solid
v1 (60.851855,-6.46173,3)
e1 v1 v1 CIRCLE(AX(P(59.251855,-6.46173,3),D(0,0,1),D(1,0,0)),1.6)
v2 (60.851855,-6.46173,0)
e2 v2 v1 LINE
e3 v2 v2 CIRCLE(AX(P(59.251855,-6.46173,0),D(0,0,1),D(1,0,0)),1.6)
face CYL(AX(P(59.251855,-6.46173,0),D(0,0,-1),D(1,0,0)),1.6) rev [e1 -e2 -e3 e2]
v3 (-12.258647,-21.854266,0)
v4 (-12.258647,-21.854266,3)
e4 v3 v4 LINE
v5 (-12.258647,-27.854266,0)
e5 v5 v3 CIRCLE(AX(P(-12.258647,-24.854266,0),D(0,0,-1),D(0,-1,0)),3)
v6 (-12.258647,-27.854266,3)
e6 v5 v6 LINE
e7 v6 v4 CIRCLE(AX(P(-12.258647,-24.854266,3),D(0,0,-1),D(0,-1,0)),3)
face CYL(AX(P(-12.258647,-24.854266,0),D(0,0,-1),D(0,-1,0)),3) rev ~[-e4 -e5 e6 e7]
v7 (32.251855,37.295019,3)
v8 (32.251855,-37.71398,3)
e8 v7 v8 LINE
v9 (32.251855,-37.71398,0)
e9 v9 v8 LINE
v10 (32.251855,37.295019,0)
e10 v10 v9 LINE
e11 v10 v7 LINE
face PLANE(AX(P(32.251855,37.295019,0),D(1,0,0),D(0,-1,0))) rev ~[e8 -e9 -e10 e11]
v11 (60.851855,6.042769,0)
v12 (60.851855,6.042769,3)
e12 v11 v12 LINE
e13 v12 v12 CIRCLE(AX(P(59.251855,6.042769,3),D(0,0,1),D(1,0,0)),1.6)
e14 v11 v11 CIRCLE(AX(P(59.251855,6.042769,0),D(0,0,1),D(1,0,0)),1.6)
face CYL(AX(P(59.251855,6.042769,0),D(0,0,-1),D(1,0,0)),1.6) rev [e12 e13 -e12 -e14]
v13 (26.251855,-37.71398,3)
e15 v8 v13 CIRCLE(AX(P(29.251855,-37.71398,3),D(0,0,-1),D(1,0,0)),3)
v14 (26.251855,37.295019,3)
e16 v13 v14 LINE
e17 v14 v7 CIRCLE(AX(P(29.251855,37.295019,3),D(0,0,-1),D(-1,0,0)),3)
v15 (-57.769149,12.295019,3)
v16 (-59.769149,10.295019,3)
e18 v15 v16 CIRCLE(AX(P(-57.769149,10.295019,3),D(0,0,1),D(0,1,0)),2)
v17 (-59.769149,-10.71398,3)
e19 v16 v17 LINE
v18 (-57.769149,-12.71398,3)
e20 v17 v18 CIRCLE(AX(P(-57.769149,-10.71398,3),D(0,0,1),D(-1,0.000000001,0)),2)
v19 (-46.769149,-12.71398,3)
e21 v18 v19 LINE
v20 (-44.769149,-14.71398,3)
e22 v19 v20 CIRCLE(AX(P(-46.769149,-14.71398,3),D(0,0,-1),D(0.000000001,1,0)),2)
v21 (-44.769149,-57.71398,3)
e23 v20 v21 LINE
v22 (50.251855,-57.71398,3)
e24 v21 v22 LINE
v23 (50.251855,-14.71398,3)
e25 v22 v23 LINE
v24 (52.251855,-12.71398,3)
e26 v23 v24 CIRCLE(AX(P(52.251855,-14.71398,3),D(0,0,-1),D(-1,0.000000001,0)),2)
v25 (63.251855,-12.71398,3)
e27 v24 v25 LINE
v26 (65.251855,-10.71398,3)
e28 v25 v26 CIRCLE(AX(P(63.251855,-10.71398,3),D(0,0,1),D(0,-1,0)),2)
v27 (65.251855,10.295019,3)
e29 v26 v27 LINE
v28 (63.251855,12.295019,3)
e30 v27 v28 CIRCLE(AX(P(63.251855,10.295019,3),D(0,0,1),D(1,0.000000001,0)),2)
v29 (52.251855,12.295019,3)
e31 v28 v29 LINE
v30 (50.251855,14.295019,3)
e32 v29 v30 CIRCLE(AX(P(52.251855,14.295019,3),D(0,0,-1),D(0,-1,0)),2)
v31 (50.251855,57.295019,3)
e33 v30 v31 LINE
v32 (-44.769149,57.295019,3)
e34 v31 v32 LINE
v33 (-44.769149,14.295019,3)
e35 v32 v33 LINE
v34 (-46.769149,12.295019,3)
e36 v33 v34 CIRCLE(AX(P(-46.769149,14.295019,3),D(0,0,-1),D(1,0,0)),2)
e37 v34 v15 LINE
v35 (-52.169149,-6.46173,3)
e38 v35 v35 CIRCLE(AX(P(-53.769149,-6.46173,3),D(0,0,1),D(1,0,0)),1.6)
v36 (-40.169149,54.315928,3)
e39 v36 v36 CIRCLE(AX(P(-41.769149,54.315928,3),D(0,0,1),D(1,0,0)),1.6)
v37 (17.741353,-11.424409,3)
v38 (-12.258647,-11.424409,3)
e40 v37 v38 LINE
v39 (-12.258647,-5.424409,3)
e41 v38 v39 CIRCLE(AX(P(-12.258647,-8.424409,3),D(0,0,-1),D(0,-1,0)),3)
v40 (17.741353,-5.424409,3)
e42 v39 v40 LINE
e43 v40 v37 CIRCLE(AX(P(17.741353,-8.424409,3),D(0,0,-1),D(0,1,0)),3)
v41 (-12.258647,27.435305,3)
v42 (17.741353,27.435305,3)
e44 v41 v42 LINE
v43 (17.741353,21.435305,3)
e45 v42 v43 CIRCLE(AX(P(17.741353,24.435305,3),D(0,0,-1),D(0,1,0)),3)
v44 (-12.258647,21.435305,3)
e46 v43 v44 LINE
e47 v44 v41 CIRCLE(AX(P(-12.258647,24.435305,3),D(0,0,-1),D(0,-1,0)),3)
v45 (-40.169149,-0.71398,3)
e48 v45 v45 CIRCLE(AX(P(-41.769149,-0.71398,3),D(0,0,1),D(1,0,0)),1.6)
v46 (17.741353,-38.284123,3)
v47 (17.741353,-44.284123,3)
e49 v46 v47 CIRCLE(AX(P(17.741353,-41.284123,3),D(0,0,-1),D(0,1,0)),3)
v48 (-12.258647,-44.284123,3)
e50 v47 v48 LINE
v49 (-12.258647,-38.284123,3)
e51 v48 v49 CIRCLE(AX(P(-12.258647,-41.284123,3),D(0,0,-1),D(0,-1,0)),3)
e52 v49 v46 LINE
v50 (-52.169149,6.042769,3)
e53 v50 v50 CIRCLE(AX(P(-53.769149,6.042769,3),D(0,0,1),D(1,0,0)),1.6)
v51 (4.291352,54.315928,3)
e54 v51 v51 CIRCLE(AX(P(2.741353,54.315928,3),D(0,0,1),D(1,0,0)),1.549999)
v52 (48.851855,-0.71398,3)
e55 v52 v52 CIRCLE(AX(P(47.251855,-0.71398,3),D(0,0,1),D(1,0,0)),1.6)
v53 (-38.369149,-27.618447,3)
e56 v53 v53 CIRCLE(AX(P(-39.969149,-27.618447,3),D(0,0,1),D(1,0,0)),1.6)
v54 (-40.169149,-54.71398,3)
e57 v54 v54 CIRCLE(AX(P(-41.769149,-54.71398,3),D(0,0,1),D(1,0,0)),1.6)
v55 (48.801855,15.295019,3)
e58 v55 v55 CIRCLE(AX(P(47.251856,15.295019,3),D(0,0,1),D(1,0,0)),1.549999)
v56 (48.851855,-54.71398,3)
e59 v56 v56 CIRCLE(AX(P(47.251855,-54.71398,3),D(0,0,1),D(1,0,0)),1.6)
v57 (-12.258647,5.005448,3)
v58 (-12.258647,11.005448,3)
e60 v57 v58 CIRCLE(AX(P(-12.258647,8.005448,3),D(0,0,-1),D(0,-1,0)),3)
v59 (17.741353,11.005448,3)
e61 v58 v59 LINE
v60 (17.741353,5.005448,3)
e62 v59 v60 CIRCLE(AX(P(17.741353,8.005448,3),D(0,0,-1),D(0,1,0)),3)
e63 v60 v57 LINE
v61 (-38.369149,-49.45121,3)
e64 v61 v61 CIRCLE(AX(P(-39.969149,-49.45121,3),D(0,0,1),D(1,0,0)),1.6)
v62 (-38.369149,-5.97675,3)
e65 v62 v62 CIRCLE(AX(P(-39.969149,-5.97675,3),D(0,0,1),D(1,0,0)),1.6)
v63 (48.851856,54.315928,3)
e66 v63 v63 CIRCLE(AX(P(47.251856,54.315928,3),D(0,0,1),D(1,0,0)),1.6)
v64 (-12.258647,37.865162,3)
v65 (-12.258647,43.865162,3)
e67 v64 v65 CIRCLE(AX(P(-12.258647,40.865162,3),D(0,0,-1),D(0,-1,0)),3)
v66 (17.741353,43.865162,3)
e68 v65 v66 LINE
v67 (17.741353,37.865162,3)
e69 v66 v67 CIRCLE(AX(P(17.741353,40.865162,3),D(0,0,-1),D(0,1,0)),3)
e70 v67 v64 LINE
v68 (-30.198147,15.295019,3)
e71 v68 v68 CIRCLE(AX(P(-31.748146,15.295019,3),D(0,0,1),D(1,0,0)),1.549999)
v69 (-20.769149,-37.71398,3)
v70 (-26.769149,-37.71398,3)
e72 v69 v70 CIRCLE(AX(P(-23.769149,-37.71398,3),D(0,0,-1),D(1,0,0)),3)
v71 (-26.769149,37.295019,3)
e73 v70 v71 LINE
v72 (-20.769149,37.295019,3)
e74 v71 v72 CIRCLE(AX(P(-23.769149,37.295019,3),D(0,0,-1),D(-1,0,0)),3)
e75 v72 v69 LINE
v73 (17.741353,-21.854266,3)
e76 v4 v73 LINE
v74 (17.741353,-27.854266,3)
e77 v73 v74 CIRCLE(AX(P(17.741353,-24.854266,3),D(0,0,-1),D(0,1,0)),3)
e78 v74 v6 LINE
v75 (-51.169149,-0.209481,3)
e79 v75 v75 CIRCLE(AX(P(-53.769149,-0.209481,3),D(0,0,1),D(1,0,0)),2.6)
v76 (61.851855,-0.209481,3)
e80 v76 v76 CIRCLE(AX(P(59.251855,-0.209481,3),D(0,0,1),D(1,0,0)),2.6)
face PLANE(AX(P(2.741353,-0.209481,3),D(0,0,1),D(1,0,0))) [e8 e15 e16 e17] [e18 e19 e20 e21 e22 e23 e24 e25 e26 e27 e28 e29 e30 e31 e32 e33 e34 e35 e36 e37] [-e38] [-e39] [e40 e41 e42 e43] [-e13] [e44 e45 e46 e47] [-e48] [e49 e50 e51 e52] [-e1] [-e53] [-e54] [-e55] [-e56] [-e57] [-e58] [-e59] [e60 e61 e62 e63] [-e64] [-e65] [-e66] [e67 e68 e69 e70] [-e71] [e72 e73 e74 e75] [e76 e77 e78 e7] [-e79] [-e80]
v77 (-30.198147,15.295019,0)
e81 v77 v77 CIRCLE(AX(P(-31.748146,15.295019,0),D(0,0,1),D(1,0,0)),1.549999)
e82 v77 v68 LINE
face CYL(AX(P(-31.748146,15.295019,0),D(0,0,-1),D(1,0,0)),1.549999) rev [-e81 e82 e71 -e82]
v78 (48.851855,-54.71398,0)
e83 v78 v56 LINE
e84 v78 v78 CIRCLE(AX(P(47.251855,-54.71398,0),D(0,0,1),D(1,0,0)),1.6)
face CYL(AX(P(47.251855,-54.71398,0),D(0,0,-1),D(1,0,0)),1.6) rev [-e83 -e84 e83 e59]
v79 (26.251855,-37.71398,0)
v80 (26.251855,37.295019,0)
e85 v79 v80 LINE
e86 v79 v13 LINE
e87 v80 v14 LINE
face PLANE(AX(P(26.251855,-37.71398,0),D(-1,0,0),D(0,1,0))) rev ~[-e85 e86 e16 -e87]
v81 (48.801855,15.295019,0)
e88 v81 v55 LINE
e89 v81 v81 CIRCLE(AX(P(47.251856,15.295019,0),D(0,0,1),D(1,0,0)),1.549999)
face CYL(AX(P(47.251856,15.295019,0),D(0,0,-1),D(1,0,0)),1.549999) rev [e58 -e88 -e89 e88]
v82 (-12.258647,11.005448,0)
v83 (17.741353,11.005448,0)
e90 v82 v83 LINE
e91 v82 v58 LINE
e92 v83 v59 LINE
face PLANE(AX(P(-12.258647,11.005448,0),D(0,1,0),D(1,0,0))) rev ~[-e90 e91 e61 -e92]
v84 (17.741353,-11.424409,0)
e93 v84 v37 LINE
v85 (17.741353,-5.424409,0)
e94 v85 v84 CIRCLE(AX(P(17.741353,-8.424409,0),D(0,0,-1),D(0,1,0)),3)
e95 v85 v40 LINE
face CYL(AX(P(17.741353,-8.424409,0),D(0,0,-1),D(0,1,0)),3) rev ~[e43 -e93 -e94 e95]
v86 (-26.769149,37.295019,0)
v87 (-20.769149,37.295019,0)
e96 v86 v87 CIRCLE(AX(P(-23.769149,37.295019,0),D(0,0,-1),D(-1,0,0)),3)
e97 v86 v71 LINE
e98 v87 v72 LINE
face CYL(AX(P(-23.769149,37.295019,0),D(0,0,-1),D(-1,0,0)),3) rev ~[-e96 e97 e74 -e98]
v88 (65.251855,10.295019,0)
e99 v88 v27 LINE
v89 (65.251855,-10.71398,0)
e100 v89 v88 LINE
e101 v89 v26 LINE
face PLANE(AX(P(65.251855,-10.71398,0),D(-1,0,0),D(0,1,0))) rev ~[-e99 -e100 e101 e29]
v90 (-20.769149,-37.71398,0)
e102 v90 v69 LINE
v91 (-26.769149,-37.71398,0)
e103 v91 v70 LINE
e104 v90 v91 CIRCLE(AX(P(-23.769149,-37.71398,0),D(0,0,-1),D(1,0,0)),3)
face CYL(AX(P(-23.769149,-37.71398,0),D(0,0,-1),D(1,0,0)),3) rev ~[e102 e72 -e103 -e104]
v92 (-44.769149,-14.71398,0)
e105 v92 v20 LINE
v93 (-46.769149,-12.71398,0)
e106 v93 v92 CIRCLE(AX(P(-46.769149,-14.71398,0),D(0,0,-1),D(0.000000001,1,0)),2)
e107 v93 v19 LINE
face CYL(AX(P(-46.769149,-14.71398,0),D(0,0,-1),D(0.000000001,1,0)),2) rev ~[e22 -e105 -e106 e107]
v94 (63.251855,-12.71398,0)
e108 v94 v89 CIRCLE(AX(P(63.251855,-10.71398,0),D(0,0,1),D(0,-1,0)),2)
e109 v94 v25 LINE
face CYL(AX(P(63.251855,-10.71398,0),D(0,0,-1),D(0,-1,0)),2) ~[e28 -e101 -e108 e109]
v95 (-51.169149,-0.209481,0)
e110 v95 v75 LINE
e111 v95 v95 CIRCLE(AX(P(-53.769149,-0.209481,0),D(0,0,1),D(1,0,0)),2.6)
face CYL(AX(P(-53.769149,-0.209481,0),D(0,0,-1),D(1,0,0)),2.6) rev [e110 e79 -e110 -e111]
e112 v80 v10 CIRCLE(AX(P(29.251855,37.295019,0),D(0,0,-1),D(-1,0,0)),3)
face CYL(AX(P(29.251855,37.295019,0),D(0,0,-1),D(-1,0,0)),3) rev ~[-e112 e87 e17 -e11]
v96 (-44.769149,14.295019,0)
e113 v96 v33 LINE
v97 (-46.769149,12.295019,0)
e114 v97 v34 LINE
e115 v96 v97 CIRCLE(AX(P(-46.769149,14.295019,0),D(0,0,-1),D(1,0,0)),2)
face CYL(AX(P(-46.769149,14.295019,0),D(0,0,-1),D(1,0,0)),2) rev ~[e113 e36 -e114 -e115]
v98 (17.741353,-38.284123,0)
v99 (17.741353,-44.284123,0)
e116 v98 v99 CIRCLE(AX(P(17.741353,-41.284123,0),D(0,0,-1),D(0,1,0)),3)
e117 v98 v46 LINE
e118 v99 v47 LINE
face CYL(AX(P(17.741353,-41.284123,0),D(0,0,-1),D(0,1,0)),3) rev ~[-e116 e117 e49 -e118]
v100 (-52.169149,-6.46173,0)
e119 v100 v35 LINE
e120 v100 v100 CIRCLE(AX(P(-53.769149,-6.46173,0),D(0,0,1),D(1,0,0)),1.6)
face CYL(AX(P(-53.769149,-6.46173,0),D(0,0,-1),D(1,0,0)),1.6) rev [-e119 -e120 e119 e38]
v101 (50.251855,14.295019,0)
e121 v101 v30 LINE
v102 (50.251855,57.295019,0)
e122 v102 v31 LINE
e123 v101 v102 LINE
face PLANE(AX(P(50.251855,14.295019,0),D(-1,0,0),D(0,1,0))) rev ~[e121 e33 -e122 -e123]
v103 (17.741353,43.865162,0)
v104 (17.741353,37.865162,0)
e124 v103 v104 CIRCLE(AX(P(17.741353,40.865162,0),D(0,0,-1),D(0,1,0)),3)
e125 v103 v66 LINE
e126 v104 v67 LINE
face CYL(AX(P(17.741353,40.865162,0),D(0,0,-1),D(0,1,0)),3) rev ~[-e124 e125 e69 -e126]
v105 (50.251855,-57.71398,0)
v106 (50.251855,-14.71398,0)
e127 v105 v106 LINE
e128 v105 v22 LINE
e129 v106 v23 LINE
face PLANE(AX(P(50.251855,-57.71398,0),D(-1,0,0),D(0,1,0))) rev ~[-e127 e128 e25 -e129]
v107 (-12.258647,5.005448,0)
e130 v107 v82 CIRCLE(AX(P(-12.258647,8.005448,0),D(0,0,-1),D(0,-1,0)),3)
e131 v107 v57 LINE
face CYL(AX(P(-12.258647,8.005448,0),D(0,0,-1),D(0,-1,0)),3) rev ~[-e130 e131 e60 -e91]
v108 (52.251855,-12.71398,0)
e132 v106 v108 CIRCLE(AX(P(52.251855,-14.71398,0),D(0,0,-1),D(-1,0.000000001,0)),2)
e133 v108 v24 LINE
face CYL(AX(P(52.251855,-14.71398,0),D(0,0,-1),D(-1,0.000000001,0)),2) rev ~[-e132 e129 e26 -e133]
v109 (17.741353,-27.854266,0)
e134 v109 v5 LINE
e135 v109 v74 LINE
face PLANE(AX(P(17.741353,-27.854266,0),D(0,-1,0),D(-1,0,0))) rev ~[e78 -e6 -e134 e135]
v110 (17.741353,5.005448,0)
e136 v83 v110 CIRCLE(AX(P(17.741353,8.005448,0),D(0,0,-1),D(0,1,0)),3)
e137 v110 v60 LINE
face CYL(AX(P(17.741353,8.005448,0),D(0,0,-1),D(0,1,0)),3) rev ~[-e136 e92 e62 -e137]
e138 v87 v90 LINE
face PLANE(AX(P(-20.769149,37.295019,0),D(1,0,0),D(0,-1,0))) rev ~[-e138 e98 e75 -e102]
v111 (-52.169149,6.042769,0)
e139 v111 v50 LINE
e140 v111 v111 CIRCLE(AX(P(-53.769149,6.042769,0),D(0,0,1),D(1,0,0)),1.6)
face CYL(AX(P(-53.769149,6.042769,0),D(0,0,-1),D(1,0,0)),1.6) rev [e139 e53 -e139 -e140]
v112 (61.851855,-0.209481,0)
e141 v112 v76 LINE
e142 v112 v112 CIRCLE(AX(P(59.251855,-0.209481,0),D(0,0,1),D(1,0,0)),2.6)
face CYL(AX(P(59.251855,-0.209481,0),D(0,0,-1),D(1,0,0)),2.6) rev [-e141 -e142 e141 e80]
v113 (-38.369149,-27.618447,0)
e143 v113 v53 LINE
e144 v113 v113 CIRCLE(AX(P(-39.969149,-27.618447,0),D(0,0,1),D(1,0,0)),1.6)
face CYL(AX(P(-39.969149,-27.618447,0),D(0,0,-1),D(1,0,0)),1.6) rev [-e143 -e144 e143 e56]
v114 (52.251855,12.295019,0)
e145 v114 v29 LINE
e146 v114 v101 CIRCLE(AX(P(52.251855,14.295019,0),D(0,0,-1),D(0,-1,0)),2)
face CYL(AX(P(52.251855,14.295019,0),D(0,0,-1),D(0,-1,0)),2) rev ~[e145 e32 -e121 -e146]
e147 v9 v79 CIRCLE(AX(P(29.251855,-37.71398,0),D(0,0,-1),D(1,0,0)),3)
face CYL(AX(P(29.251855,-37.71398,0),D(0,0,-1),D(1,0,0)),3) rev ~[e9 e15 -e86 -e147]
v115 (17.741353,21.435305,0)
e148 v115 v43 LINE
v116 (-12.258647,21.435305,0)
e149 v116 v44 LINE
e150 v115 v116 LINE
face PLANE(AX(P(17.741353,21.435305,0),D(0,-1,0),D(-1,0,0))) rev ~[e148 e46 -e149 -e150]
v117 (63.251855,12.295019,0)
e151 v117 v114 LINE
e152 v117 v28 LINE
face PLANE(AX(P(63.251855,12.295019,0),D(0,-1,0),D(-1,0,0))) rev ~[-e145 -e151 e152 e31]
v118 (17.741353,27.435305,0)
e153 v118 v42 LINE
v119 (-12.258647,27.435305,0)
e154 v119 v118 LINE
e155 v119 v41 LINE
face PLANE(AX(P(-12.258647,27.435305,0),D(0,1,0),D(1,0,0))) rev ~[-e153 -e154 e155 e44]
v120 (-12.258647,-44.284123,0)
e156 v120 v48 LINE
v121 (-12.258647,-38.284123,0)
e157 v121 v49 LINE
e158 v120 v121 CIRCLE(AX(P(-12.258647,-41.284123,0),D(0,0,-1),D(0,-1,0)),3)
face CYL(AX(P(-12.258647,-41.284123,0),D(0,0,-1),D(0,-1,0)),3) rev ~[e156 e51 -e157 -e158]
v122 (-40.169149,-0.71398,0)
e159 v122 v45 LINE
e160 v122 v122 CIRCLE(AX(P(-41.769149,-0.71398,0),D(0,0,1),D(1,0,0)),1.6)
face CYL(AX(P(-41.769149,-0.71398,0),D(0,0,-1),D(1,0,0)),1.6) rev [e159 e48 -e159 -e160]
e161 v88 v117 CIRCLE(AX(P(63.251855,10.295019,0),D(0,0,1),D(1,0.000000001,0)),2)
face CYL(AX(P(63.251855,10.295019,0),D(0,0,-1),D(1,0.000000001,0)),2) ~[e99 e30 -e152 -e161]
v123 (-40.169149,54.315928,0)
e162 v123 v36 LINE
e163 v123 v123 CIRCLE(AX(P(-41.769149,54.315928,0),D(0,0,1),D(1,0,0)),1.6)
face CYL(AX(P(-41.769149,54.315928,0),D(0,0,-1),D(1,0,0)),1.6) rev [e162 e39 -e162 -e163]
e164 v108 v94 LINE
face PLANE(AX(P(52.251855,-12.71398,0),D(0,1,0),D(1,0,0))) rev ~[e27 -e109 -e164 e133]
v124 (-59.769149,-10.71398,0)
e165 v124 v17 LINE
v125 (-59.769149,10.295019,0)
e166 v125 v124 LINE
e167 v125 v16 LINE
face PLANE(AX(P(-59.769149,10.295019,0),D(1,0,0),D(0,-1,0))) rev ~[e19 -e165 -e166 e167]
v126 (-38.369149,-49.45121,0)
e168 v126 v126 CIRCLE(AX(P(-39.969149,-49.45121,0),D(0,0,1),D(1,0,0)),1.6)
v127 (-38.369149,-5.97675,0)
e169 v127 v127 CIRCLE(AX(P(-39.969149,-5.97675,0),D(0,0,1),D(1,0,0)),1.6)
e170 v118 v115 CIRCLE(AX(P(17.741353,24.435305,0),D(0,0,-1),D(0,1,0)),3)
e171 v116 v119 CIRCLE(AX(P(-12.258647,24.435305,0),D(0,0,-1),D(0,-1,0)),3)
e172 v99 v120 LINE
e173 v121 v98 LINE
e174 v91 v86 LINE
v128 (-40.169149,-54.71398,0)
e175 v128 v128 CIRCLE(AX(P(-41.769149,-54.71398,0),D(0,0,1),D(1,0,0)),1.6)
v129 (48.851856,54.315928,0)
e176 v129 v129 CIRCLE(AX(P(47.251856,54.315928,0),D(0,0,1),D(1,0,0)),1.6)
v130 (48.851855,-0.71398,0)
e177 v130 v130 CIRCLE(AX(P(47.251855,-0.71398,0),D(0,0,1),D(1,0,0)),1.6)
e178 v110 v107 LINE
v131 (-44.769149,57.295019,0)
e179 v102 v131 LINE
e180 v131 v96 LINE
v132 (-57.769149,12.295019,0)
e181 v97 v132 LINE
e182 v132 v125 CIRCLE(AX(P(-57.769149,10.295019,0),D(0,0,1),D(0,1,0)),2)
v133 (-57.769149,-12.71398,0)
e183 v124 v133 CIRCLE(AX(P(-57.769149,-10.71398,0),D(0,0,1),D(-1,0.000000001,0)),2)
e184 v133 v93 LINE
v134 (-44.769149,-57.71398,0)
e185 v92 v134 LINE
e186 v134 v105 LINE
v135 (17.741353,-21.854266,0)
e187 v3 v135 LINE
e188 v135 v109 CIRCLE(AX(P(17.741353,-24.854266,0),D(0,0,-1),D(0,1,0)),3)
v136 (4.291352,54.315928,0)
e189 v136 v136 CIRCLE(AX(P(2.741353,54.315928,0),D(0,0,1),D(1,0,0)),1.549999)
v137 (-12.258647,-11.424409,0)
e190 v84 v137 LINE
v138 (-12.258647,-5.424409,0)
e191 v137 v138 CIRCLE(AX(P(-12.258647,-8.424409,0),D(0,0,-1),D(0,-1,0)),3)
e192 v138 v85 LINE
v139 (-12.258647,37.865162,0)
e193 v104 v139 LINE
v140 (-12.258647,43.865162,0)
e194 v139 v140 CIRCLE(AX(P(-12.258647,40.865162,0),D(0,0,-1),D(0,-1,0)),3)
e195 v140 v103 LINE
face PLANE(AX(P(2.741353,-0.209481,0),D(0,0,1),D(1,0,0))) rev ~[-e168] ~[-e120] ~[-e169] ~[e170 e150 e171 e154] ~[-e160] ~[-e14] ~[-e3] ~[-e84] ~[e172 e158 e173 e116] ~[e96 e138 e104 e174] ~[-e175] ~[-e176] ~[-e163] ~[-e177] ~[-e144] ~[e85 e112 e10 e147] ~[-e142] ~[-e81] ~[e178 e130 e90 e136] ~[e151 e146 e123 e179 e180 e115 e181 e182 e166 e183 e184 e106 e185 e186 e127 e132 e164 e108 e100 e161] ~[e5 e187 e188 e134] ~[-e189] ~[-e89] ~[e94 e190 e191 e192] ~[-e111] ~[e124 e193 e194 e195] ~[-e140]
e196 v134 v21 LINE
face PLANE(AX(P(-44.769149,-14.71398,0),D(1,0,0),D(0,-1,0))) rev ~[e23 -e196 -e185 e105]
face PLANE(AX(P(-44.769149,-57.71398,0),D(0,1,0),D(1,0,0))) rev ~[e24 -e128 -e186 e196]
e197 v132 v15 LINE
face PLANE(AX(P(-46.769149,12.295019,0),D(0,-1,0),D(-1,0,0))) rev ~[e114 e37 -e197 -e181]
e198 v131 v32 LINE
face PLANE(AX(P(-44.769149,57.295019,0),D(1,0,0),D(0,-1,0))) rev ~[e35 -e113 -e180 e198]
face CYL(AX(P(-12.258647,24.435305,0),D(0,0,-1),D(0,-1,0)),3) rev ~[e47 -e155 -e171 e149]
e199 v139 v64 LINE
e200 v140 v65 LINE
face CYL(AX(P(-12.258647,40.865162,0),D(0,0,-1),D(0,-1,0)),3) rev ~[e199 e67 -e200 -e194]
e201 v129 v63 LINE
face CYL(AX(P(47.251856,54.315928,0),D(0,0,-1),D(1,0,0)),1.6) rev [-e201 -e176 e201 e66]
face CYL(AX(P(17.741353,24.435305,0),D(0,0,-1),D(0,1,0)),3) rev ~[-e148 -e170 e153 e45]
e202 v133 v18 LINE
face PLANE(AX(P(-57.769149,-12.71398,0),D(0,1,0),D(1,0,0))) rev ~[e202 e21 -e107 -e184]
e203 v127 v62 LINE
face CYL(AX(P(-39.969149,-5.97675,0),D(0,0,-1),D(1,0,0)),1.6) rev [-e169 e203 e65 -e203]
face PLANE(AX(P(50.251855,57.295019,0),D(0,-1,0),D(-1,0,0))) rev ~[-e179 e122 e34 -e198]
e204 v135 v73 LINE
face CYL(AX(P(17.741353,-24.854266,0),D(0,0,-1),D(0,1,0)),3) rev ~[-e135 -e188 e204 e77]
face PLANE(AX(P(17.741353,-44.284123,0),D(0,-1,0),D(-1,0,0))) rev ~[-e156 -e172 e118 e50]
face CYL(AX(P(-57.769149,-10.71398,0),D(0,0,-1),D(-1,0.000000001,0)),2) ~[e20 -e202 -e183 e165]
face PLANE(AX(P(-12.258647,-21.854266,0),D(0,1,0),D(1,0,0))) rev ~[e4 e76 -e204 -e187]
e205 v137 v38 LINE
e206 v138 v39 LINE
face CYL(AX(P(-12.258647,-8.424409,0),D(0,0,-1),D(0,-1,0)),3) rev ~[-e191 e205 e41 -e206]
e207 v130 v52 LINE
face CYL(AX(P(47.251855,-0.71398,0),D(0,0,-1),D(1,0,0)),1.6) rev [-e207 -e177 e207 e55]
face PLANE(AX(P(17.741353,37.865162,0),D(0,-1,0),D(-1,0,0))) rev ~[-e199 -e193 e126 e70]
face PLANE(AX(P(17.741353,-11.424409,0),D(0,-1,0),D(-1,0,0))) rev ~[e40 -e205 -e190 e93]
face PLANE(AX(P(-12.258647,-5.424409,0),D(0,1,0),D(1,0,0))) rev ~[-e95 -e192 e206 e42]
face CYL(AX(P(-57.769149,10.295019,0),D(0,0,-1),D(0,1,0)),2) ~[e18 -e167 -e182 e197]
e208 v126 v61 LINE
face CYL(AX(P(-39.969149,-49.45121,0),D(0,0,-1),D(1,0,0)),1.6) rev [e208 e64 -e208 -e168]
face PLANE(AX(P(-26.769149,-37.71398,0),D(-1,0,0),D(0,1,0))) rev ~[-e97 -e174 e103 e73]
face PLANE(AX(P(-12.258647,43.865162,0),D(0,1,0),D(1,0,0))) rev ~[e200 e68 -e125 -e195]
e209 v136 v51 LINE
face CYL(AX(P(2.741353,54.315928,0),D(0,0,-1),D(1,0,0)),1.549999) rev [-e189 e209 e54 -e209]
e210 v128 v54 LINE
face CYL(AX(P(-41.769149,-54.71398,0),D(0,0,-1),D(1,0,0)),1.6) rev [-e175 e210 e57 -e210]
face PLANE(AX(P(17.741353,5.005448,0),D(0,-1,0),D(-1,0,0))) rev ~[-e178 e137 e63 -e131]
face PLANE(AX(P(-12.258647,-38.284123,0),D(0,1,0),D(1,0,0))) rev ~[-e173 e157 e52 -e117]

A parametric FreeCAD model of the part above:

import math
import FreeCAD as App
import Part
import Sketcher

V = App.Vector

doc = App.newDocument("Part")
body = doc.addObject("PartDesign::Body", "Body")

# Sketch on XY plane
sketch1 = body.newObject("Sketcher::SketchObject", "Sketch")
sketch1.AttachmentSupport = (doc.getObject("XY_Plane"), [""])
sketch1.MapMode = "FlatFace"
sketch1.addGeometry(Part.LineSegment(V(50.3, 14.3, 0), V(50.3, 57.3, 0)), False)
sketch1.addGeometry(Part.LineSegment(V(50.3, 57.3, 0), V(-44.8, 57.3, 0)), False)
sketch1.addGeometry(Part.LineSegment(V(-44.8, 57.3, 0), V(-44.8, 14.3, 0)), False)
sketch1.addGeometry(Part.ArcOfCircle(Part.Circle(V(-46.8, 14.3, 0), V(0, 0, 1), 2), math.radians(-90), math.radians(0)), False)
sketch1.addGeometry(Part.LineSegment(V(-46.8, 12.3, 0), V(-57.8, 12.3, 0)), False)
sketch1.addGeometry(Part.ArcOfCircle(Part.Circle(V(-57.8, 10.3, 0), V(0, 0, 1), 2), math.radians(90), math.radians(180)), False)
sketch1.addGeometry(Part.LineSegment(V(-59.8, 10.3, 0), V(-59.8, -10.7, 0)), False)
sketch1.addGeometry(Part.ArcOfCircle(Part.Circle(V(-57.8, -10.7, 0), V(0, 0, 1), 2), math.radians(180), math.radians(270)), False)
sketch1.addGeometry(Part.LineSegment(V(-57.8, -12.7, 0), V(-46.8, -12.7, 0)), False)
sketch1.addGeometry(Part.ArcOfCircle(Part.Circle(V(-46.8, -14.7, 0), V(0, 0, 1), 2), math.radians(0), math.radians(90)), False)
sketch1.addGeometry(Part.LineSegment(V(-44.8, -14.7, 0), V(-44.8, -57.7, 0)), False)
sketch1.addGeometry(Part.LineSegment(V(-44.8, -57.7, 0), V(50.3, -57.7, 0)), False)
sketch1.addGeometry(Part.LineSegment(V(50.3, -57.7, 0), V(50.3, -14.7, 0)), False)
sketch1.addGeometry(Part.ArcOfCircle(Part.Circle(V(52.3, -14.7, 0), V(0, 0, 1), 2), math.radians(90), math.radians(180)), False)
sketch1.addGeometry(Part.LineSegment(V(52.3, -12.7, 0), V(63.3, -12.7, 0)), False)
sketch1.addGeometry(Part.ArcOfCircle(Part.Circle(V(63.3, -10.7, 0), V(0, 0, 1), 2), math.radians(-90), math.radians(0)), False)
sketch1.addGeometry(Part.LineSegment(V(65.3, -10.7, 0), V(65.3, 10.3, 0)), False)
sketch1.addGeometry(Part.ArcOfCircle(Part.Circle(V(63.3, 10.3, 0), V(0, 0, 1), 2), math.radians(0), math.radians(90)), False)
sketch1.addGeometry(Part.LineSegment(V(63.3, 12.3, 0), V(52.3, 12.3, 0)), False)
sketch1.addGeometry(Part.ArcOfCircle(Part.Circle(V(52.3, 14.3, 0), V(0, 0, 1), 2), math.radians(180), math.radians(270)), False)
sketch1.addGeometry(Part.Circle(V(-41.8, -54.7, 0), V(0, 0, 1), 1.6), False)
sketch1.addGeometry(Part.Circle(V(-40, -49.5, 0), V(0, 0, 1), 1.6), False)
sketch1.addGeometry(Part.ArcOfCircle(Part.Circle(V(-12.3, -41.3, 0), V(0, 0, 1), 3), math.radians(90), math.radians(270)), False)
sketch1.addGeometry(Part.LineSegment(V(-12.3, -38.3, 0), V(17.7, -38.3, 0)), False)
sketch1.addGeometry(Part.ArcOfCircle(Part.Circle(V(17.7, -41.3, 0), V(0, 0, 1), 3), math.radians(-90), math.radians(90)), False)
sketch1.addGeometry(Part.LineSegment(V(17.7, -44.3, 0), V(-12.3, -44.3, 0)), False)
sketch1.addGeometry(Part.Circle(V(-40, -27.6, 0), V(0, 0, 1), 1.6), False)
sketch1.addGeometry(Part.Circle(V(-53.8, -6.5, 0), V(0, 0, 1), 1.6), False)
sketch1.addGeometry(Part.Circle(V(-53.8, -0.2, 0), V(0, 0, 1), 2.6), False)
sketch1.addGeometry(Part.Circle(V(-41.8, -0.7, 0), V(0, 0, 1), 1.6), False)
sketch1.addGeometry(Part.Circle(V(-40, -6, 0), V(0, 0, 1), 1.6), False)
sketch1.addGeometry(Part.ArcOfCircle(Part.Circle(V(-12.3, -24.9, 0), V(0, 0, 1), 3), math.radians(90), math.radians(270)), False)
sketch1.addGeometry(Part.LineSegment(V(-12.3, -21.9, 0), V(17.7, -21.9, 0)), False)
sketch1.addGeometry(Part.ArcOfCircle(Part.Circle(V(17.7, -24.9, 0), V(0, 0, 1), 3), math.radians(-90), math.radians(90)), False)
sketch1.addGeometry(Part.LineSegment(V(17.7, -27.9, 0), V(-12.3, -27.9, 0)), False)
sketch1.addGeometry(Part.ArcOfCircle(Part.Circle(V(-23.8, 37.3, 0), V(0, 0, 1), 3), math.radians(0), math.radians(180)), False)
sketch1.addGeometry(Part.LineSegment(V(-20.8, 37.3, 0), V(-20.8, -37.7, 0)), False)
sketch1.addGeometry(Part.ArcOfCircle(Part.Circle(V(-23.8, -37.7, 0), V(0, 0, 1), 3), math.radians(180), math.radians(360)), False)
sketch1.addGeometry(Part.LineSegment(V(-26.8, -37.7, 0), V(-26.8, 37.3, 0)), False)
sketch1.addGeometry(Part.ArcOfCircle(Part.Circle(V(-12.3, -8.4, 0), V(0, 0, 1), 3), math.radians(90), math.radians(270)), False)
sketch1.addGeometry(Part.LineSegment(V(-12.3, -5.4, 0), V(17.7, -5.4, 0)), False)
sketch1.addGeometry(Part.ArcOfCircle(Part.Circle(V(17.7, -8.4, 0), V(0, 0, 1), 3), math.radians(-90), math.radians(90)), False)
sketch1.addGeometry(Part.LineSegment(V(17.7, -11.4, 0), V(-12.3, -11.4, 0)), False)
sketch1.addGeometry(Part.Circle(V(47.3, -54.7, 0), V(0, 0, 1), 1.6), False)
sketch1.addGeometry(Part.ArcOfCircle(Part.Circle(V(29.3, 37.3, 0), V(0, 0, 1), 3), math.radians(0), math.radians(180)), False)
sketch1.addGeometry(Part.LineSegment(V(32.3, 37.3, 0), V(32.3, -37.7, 0)), False)
sketch1.addGeometry(Part.ArcOfCircle(Part.Circle(V(29.3, -37.7, 0), V(0, 0, 1), 3), math.radians(180), math.radians(360)), False)
sketch1.addGeometry(Part.LineSegment(V(26.3, -37.7, 0), V(26.3, 37.3, 0)), False)
sketch1.addGeometry(Part.Circle(V(47.3, -0.7, 0), V(0, 0, 1), 1.6), False)
sketch1.addGeometry(Part.Circle(V(59.3, -6.5, 0), V(0, 0, 1), 1.6), False)
sketch1.addGeometry(Part.Circle(V(59.3, -0.2, 0), V(0, 0, 1), 2.6), False)
sketch1.addGeometry(Part.Circle(V(-53.8, 6, 0), V(0, 0, 1), 1.6), False)
sketch1.addGeometry(Part.Circle(V(-31.7, 15.3, 0), V(0, 0, 1), 1.5), False)
sketch1.addGeometry(Part.ArcOfCircle(Part.Circle(V(-12.3, 8, 0), V(0, 0, 1), 3), math.radians(90), math.radians(270)), False)
sketch1.addGeometry(Part.LineSegment(V(-12.3, 11, 0), V(17.7, 11, 0)), False)
sketch1.addGeometry(Part.ArcOfCircle(Part.Circle(V(17.7, 8, 0), V(0, 0, 1), 3), math.radians(-90), math.radians(90)), False)
sketch1.addGeometry(Part.LineSegment(V(17.7, 5, 0), V(-12.3, 5, 0)), False)
sketch1.addGeometry(Part.ArcOfCircle(Part.Circle(V(-12.3, 24.4, 0), V(0, 0, 1), 3), math.radians(90), math.radians(270)), False)
sketch1.addGeometry(Part.LineSegment(V(-12.3, 27.4, 0), V(17.7, 27.4, 0)), False)
sketch1.addGeometry(Part.ArcOfCircle(Part.Circle(V(17.7, 24.4, 0), V(0, 0, 1), 3), math.radians(-90), math.radians(90)), False)
sketch1.addGeometry(Part.LineSegment(V(17.7, 21.4, 0), V(-12.3, 21.4, 0)), False)
sketch1.addGeometry(Part.Circle(V(-41.8, 54.3, 0), V(0, 0, 1), 1.6), False)
sketch1.addGeometry(Part.ArcOfCircle(Part.Circle(V(-12.3, 40.9, 0), V(0, 0, 1), 3), math.radians(90), math.radians(270)), False)
sketch1.addGeometry(Part.LineSegment(V(-12.3, 43.9, 0), V(17.7, 43.9, 0)), False)
sketch1.addGeometry(Part.ArcOfCircle(Part.Circle(V(17.7, 40.9, 0), V(0, 0, 1), 3), math.radians(-90), math.radians(90)), False)
sketch1.addGeometry(Part.LineSegment(V(17.7, 37.9, 0), V(-12.3, 37.9, 0)), False)
sketch1.addGeometry(Part.Circle(V(2.7, 54.3, 0), V(0, 0, 1), 1.5), False)
sketch1.addGeometry(Part.Circle(V(59.3, 6, 0), V(0, 0, 1), 1.6), False)
sketch1.addGeometry(Part.Circle(V(47.3, 15.3, 0), V(0, 0, 1), 1.5), False)
sketch1.addGeometry(Part.Circle(V(47.3, 54.3, 0), V(0, 0, 1), 1.6), False)
sketch1.addConstraint(Sketcher.Constraint("Coincident", 0, 2, 1, 1))
sketch1.addConstraint(Sketcher.Constraint("Coincident", 1, 2, 2, 1))
sketch1.addConstraint(Sketcher.Constraint("Tangent", 2, 2, 3, 2))
sketch1.addConstraint(Sketcher.Constraint("Tangent", 3, 1, 4, 1))
sketch1.addConstraint(Sketcher.Constraint("Tangent", 4, 2, 5, 1))
sketch1.addConstraint(Sketcher.Constraint("Tangent", 5, 2, 6, 1))
sketch1.addConstraint(Sketcher.Constraint("Tangent", 6, 2, 7, 1))
sketch1.addConstraint(Sketcher.Constraint("Tangent", 7, 2, 8, 1))
sketch1.addConstraint(Sketcher.Constraint("Tangent", 8, 2, 9, 2))
sketch1.addConstraint(Sketcher.Constraint("Tangent", 9, 1, 10, 1))
sketch1.addConstraint(Sketcher.Constraint("Coincident", 10, 2, 11, 1))
sketch1.addConstraint(Sketcher.Constraint("Coincident", 11, 2, 12, 1))
sketch1.addConstraint(Sketcher.Constraint("Tangent", 12, 2, 13, 2))
sketch1.addConstraint(Sketcher.Constraint("Tangent", 13, 1, 14, 1))
sketch1.addConstraint(Sketcher.Constraint("Tangent", 14, 2, 15, 1))
sketch1.addConstraint(Sketcher.Constraint("Tangent", 15, 2, 16, 1))
sketch1.addConstraint(Sketcher.Constraint("Tangent", 16, 2, 17, 1))
sketch1.addConstraint(Sketcher.Constraint("Tangent", 17, 2, 18, 1))
sketch1.addConstraint(Sketcher.Constraint("Tangent", 18, 2, 19, 2))
sketch1.addConstraint(Sketcher.Constraint("Tangent", 19, 1, 0, 1))
sketch1.addConstraint(Sketcher.Constraint("Tangent", 22, 1, 23, 1))
sketch1.addConstraint(Sketcher.Constraint("Tangent", 23, 2, 24, 2))
sketch1.addConstraint(Sketcher.Constraint("Tangent", 24, 1, 25, 1))
sketch1.addConstraint(Sketcher.Constraint("Tangent", 25, 2, 22, 2))
sketch1.addConstraint(Sketcher.Constraint("Tangent", 31, 1, 32, 1))
sketch1.addConstraint(Sketcher.Constraint("Tangent", 32, 2, 33, 2))
sketch1.addConstraint(Sketcher.Constraint("Tangent", 33, 1, 34, 1))
sketch1.addConstraint(Sketcher.Constraint("Tangent", 34, 2, 31, 2))
sketch1.addConstraint(Sketcher.Constraint("Tangent", 35, 1, 36, 1))
sketch1.addConstraint(Sketcher.Constraint("Tangent", 36, 2, 37, 2))
sketch1.addConstraint(Sketcher.Constraint("Tangent", 37, 1, 38, 1))
sketch1.addConstraint(Sketcher.Constraint("Tangent", 38, 2, 35, 2))
sketch1.addConstraint(Sketcher.Constraint("Tangent", 39, 1, 40, 1))
sketch1.addConstraint(Sketcher.Constraint("Tangent", 40, 2, 41, 2))
sketch1.addConstraint(Sketcher.Constraint("Tangent", 41, 1, 42, 1))
sketch1.addConstraint(Sketcher.Constraint("Tangent", 42, 2, 39, 2))
sketch1.addConstraint(Sketcher.Constraint("Tangent", 44, 1, 45, 1))
sketch1.addConstraint(Sketcher.Constraint("Tangent", 45, 2, 46, 2))
sketch1.addConstraint(Sketcher.Constraint("Tangent", 46, 1, 47, 1))
sketch1.addConstraint(Sketcher.Constraint("Tangent", 47, 2, 44, 2))
sketch1.addConstraint(Sketcher.Constraint("Tangent", 53, 1, 54, 1))
sketch1.addConstraint(Sketcher.Constraint("Tangent", 54, 2, 55, 2))
sketch1.addConstraint(Sketcher.Constraint("Tangent", 55, 1, 56, 1))
sketch1.addConstraint(Sketcher.Constraint("Tangent", 56, 2, 53, 2))
sketch1.addConstraint(Sketcher.Constraint("Tangent", 57, 1, 58, 1))
sketch1.addConstraint(Sketcher.Constraint("Tangent", 58, 2, 59, 2))
sketch1.addConstraint(Sketcher.Constraint("Tangent", 59, 1, 60, 1))
sketch1.addConstraint(Sketcher.Constraint("Tangent", 60, 2, 57, 2))
sketch1.addConstraint(Sketcher.Constraint("Tangent", 62, 1, 63, 1))
sketch1.addConstraint(Sketcher.Constraint("Tangent", 63, 2, 64, 2))
sketch1.addConstraint(Sketcher.Constraint("Tangent", 64, 1, 65, 1))
sketch1.addConstraint(Sketcher.Constraint("Tangent", 65, 2, 62, 2))
sketch1.addConstraint(Sketcher.Constraint("Vertical", 0))
sketch1.addConstraint(Sketcher.Constraint("Horizontal", 1))
sketch1.addConstraint(Sketcher.Constraint("Vertical", 2))
sketch1.addConstraint(Sketcher.Constraint("Horizontal", 4))
sketch1.addConstraint(Sketcher.Constraint("Vertical", 6))
sketch1.addConstraint(Sketcher.Constraint("Horizontal", 8))
sketch1.addConstraint(Sketcher.Constraint("Vertical", 10))
sketch1.addConstraint(Sketcher.Constraint("Horizontal", 11))
sketch1.addConstraint(Sketcher.Constraint("Vertical", 12))
sketch1.addConstraint(Sketcher.Constraint("Horizontal", 14))
sketch1.addConstraint(Sketcher.Constraint("Vertical", 16))
sketch1.addConstraint(Sketcher.Constraint("Horizontal", 18))
sketch1.addConstraint(Sketcher.Constraint("Horizontal", 23))
sketch1.addConstraint(Sketcher.Constraint("Horizontal", 25))
sketch1.addConstraint(Sketcher.Constraint("Horizontal", 32))
sketch1.addConstraint(Sketcher.Constraint("Horizontal", 34))
sketch1.addConstraint(Sketcher.Constraint("Vertical", 36))
sketch1.addConstraint(Sketcher.Constraint("Vertical", 38))
sketch1.addConstraint(Sketcher.Constraint("Horizontal", 40))
sketch1.addConstraint(Sketcher.Constraint("Horizontal", 42))
sketch1.addConstraint(Sketcher.Constraint("Vertical", 45))
sketch1.addConstraint(Sketcher.Constraint("Vertical", 47))
sketch1.addConstraint(Sketcher.Constraint("Horizontal", 54))
sketch1.addConstraint(Sketcher.Constraint("Horizontal", 56))
sketch1.addConstraint(Sketcher.Constraint("Horizontal", 58))
sketch1.addConstraint(Sketcher.Constraint("Horizontal", 60))
sketch1.addConstraint(Sketcher.Constraint("Horizontal", 63))
sketch1.addConstraint(Sketcher.Constraint("Horizontal", 65))
sketch1.addConstraint(Sketcher.Constraint("Equal", 3, 5))
sketch1.addConstraint(Sketcher.Constraint("Equal", 5, 7))
sketch1.addConstraint(Sketcher.Constraint("Equal", 7, 9))
sketch1.addConstraint(Sketcher.Constraint("Equal", 9, 13))
sketch1.addConstraint(Sketcher.Constraint("Equal", 13, 15))
sketch1.addConstraint(Sketcher.Constraint("Equal", 15, 17))
sketch1.addConstraint(Sketcher.Constraint("Equal", 17, 19))
sketch1.addConstraint(Sketcher.Constraint("Equal", 20, 21))
sketch1.addConstraint(Sketcher.Constraint("Equal", 21, 26))
sketch1.addConstraint(Sketcher.Constraint("Equal", 26, 27))
sketch1.addConstraint(Sketcher.Constraint("Equal", 27, 29))
sketch1.addConstraint(Sketcher.Constraint("Equal", 29, 30))
sketch1.addConstraint(Sketcher.Constraint("Equal", 24, 31))
sketch1.addConstraint(Sketcher.Constraint("Equal", 33, 35))
sketch1.addConstraint(Sketcher.Constraint("Equal", 37, 39))
sketch1.addConstraint(Sketcher.Constraint("Equal", 30, 43))
sketch1.addConstraint(Sketcher.Constraint("Equal", 41, 44))
sketch1.addConstraint(Sketcher.Constraint("Equal", 43, 48))
sketch1.addConstraint(Sketcher.Constraint("Equal", 48, 49))
sketch1.addConstraint(Sketcher.Constraint("Equal", 28, 50))
sketch1.addConstraint(Sketcher.Constraint("Equal", 49, 51))
sketch1.addConstraint(Sketcher.Constraint("Equal", 46, 53))
sketch1.addConstraint(Sketcher.Constraint("Equal", 55, 57))
sketch1.addConstraint(Sketcher.Constraint("Equal", 51, 61))
sketch1.addConstraint(Sketcher.Constraint("Equal", 59, 62))
sketch1.addConstraint(Sketcher.Constraint("Equal", 52, 66))
sketch1.addConstraint(Sketcher.Constraint("Equal", 61, 67))
sketch1.addConstraint(Sketcher.Constraint("Equal", 66, 68))
sketch1.addConstraint(Sketcher.Constraint("Equal", 67, 69))
sketch1.addConstraint(Sketcher.Constraint("Horizontal", 9, 3, 13, 3))
sketch1.addConstraint(Sketcher.Constraint("Horizontal", 5, 3, 17, 3))
sketch1.addConstraint(Sketcher.Constraint("Horizontal", 20, 3, 43, 3))
sketch1.addConstraint(Sketcher.Constraint("Horizontal", 35, 3, 44, 3))
sketch1.addConstraint(Sketcher.Constraint("Horizontal", 37, 3, 46, 3))
sketch1.addConstraint(Sketcher.Constraint("Horizontal", 29, 3, 48, 3))
sketch1.addConstraint(Sketcher.Constraint("Horizontal", 27, 3, 49, 3))
sketch1.addConstraint(Sketcher.Constraint("Horizontal", 28, 3, 50, 3))
sketch1.addConstraint(Sketcher.Constraint("Horizontal", 61, 3, 66, 3))
sketch1.addConstraint(Sketcher.Constraint("Horizontal", 51, 3, 67, 3))
sketch1.addConstraint(Sketcher.Constraint("Horizontal", 52, 3, 68, 3))
sketch1.addConstraint(Sketcher.Constraint("Horizontal", 66, 3, 69, 3))
sketch1.addConstraint(Sketcher.Constraint("Vertical", 3, 3, 9, 3))
sketch1.addConstraint(Sketcher.Constraint("Vertical", 13, 3, 19, 3))
sketch1.addConstraint(Sketcher.Constraint("Vertical", 21, 3, 26, 3))
sketch1.addConstraint(Sketcher.Constraint("Vertical", 27, 3, 28, 3))
sketch1.addConstraint(Sketcher.Constraint("Vertical", 20, 3, 29, 3))
sketch1.addConstraint(Sketcher.Constraint("Vertical", 26, 3, 30, 3))
sketch1.addConstraint(Sketcher.Constraint("Vertical", 22, 3, 31, 3))
sketch1.addConstraint(Sketcher.Constraint("Vertical", 24, 3, 33, 3))
sketch1.addConstraint(Sketcher.Constraint("Vertical", 31, 3, 39, 3))
sketch1.addConstraint(Sketcher.Constraint("Vertical", 33, 3, 41, 3))
sketch1.addConstraint(Sketcher.Constraint("Vertical", 43, 3, 48, 3))
sketch1.addConstraint(Sketcher.Constraint("Vertical", 49, 3, 50, 3))
sketch1.addConstraint(Sketcher.Constraint("Vertical", 28, 3, 51, 3))
sketch1.addConstraint(Sketcher.Constraint("Vertical", 39, 3, 53, 3))
sketch1.addConstraint(Sketcher.Constraint("Vertical", 41, 3, 55, 3))
sketch1.addConstraint(Sketcher.Constraint("Vertical", 53, 3, 57, 3))
sketch1.addConstraint(Sketcher.Constraint("Vertical", 55, 3, 59, 3))
sketch1.addConstraint(Sketcher.Constraint("Vertical", 29, 3, 61, 3))
sketch1.addConstraint(Sketcher.Constraint("Vertical", 57, 3, 62, 3))
sketch1.addConstraint(Sketcher.Constraint("Vertical", 59, 3, 64, 3))
sketch1.addConstraint(Sketcher.Constraint("Vertical", 50, 3, 67, 3))
sketch1.addConstraint(Sketcher.Constraint("Vertical", 48, 3, 68, 3))
sketch1.addConstraint(Sketcher.Constraint("Vertical", 68, 3, 69, 3))
sketch1.addConstraint(Sketcher.Constraint("Equal", 8, 14))
sketch1.addConstraint(Sketcher.Constraint("Equal", 2, 10))
sketch1.addConstraint(Sketcher.Constraint("Radius", 3, 2.0))
sketch1.addConstraint(Sketcher.Constraint("Radius", 22, 3.0))
sketch1.addConstraint(Sketcher.Constraint("Diameter", 20, 3.2))
sketch1.addConstraint(Sketcher.Constraint("Diameter", 28, 5.2))
sketch1.addConstraint(Sketcher.Constraint("Diameter", 52, 3.099999))
sketch1.addConstraint(Sketcher.Constraint("DistanceX", 4, 2, 4, 1, 11.0))
sketch1.addConstraint(Sketcher.Constraint("DistanceX", 23, 1, 23, 2, 30.0))
sketch1.addConstraint(Sketcher.Constraint("DistanceY", 0, 1, 0, 2, 43.0))
sketch1.addConstraint(Sketcher.Constraint("DistanceY", 6, 2, 6, 1, 21.008999))
sketch1.addConstraint(Sketcher.Constraint("DistanceY", 36, 2, 36, 1, 75.008999))
sketch1.addConstraint(Sketcher.Constraint("DistanceX", 1, 2, 1, 1, 95.021004))
sketch1.addConstraint(Sketcher.Constraint("DistanceX", 3, 3, -1, 1, 46.769149))
sketch1.addConstraint(Sketcher.Constraint("DistanceY", -1, 1, 3, 3, 14.295019))
sketch1.addConstraint(Sketcher.Constraint("DistanceX", 20, 3, -1, 1, 41.769149))
sketch1.addConstraint(Sketcher.Constraint("DistanceY", 20, 3, -1, 1, 54.71398))
sketch1.addConstraint(Sketcher.Constraint("DistanceX", 21, 3, -1, 1, 39.969149))
sketch1.addConstraint(Sketcher.Constraint("DistanceY", 21, 3, -1, 1, 49.45121))
sketch1.addConstraint(Sketcher.Constraint("DistanceX", 27, 3, -1, 1, 53.769149))
sketch1.addConstraint(Sketcher.Constraint("DistanceY", 27, 3, -1, 1, 6.46173))
sketch1.addConstraint(Sketcher.Constraint("DistanceY", 28, 3, -1, 1, 0.209481))
sketch1.addConstraint(Sketcher.Constraint("DistanceY", 29, 3, -1, 1, 0.71398))
sketch1.addConstraint(Sketcher.Constraint("DistanceY", 30, 3, -1, 1, 5.97675))
sketch1.addConstraint(Sketcher.Constraint("DistanceX", 35, 3, -1, 1, 23.769149))
sketch1.addConstraint(Sketcher.Constraint("DistanceY", -1, 1, 35, 3, 37.295019))
sketch1.addConstraint(Sketcher.Constraint("DistanceY", 39, 3, -1, 1, 8.424409))
sketch1.addConstraint(Sketcher.Constraint("DistanceY", -1, 1, 51, 3, 6.042769))
sketch1.addConstraint(Sketcher.Constraint("DistanceY", -1, 1, 52, 3, 15.295019))
sketch1.addConstraint(Sketcher.Constraint("DistanceY", -1, 1, 61, 3, 54.315928))
sketch1.addConstraint(Sketcher.Constraint("DistanceY", -1, 1, 62, 3, 40.865162))
sketch1.addConstraint(Sketcher.Constraint("DistanceX", 22, 3, -1, 1, 12.258647))
sketch1.addConstraint(Sketcher.Constraint("DistanceY", 22, 3, -1, 1, 41.284123))
sketch1.addConstraint(Sketcher.Constraint("DistanceY", 26, 3, -1, 1, 27.618447))
sketch1.addConstraint(Sketcher.Constraint("DistanceY", 31, 3, -1, 1, 24.854266))
sketch1.addConstraint(Sketcher.Constraint("DistanceX", -1, 1, 43, 3, 47.251855))
sketch1.addConstraint(Sketcher.Constraint("DistanceX", -1, 1, 44, 3, 29.251855))
sketch1.addConstraint(Sketcher.Constraint("DistanceX", -1, 1, 49, 3, 59.251855))
sketch1.addConstraint(Sketcher.Constraint("DistanceX", 52, 3, -1, 1, 31.748146))
sketch1.addConstraint(Sketcher.Constraint("DistanceY", -1, 1, 53, 3, 8.005448))
sketch1.addConstraint(Sketcher.Constraint("DistanceY", -1, 1, 57, 3, 24.435305))
sketch1.addConstraint(Sketcher.Constraint("DistanceX", -1, 1, 66, 3, 2.741353))
pad1 = body.newObject("PartDesign::Pad", "Pad")
pad1.Profile = sketch1
pad1.Length = 3

doc.recompute()
